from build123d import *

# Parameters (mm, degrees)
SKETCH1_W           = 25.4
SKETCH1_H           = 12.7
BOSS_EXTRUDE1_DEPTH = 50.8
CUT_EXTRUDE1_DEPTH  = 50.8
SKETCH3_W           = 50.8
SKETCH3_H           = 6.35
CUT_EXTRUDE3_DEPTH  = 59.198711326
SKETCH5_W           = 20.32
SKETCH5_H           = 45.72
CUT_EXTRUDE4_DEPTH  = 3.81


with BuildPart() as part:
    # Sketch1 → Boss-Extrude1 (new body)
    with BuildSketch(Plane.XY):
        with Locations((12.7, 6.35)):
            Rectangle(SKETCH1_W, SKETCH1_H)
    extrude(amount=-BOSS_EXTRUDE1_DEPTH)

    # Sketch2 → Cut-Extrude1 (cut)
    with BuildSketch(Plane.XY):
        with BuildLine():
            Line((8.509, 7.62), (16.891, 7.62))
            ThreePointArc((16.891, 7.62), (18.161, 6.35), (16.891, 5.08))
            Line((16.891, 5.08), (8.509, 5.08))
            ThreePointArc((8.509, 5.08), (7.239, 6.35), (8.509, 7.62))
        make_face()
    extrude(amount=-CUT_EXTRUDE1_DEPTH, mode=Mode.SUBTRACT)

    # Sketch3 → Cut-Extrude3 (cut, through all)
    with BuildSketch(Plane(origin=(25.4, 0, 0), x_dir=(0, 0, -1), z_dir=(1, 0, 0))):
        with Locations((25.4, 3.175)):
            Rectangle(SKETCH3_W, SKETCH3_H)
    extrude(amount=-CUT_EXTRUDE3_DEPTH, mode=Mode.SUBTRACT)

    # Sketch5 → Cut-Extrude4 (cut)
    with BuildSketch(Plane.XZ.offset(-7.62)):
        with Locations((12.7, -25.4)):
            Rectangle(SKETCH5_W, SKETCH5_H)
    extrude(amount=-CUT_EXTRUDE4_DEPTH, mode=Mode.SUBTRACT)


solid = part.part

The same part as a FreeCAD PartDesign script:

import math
import FreeCAD as App
import Part
import Sketcher

V = App.Vector
Q = App.Units.Quantity


def add_polygon(sketch, points):
    """Adds a closed chain of lines whose ends are joined by coincident constraints."""
    first, n = sketch.GeometryCount, len(points)
    for a, b in zip(points, points[1:] + points[:1]):
        sketch.addGeometry(Part.LineSegment(App.Vector(*a, 0), App.Vector(*b, 0)), False)
    for i in range(n):
        sketch.addConstraint(Sketcher.Constraint("Coincident", first + i, 2, first + (i + 1) % n, 1))

doc = App.newDocument("Part")
params = doc.addObject("Spreadsheet::Sheet", "Params")
for row, (alias, value) in enumerate([
    ("sketch1_width", "1 in"),
    ("sketch1_height", "0.5 in"),
    ("pad1_length", "2 in"),
    ("sketch2_radius", "0.05 in"),
    ("sketch2_width", "0.33 in"),
    ("pocket1_length", "2 in"),
    ("sketch3_height", "2 in"),
    ("sketch3_width", "0.25 in"),
    ("sketch4_width", "0.8 in"),
    ("sketch4_height", "1.8 in"),
    ("pocket3_length", "0.15 in"),
], start=1):
    params.set(f"A{row}", alias)
    params.set(f"B{row}", "=" + value)
    params.setAlias(f"B{row}", alias)

body = doc.addObject("PartDesign::Body", "Body")

# Sketch on XY plane
sketch1 = doc.addObject("Sketcher::SketchObject", "Sketch")
body.addObject(sketch1)
sketch1.AttachmentSupport = (doc.XY_Plane, [""])
sketch1.MapMode = "FlatFace"
add_polygon(sketch1, [(0, 13), (0, 0), (25, 0), (25, 13)])  # lines 0-3
sketch1.addConstraint(Sketcher.Constraint("Vertical", 0))
sketch1.addConstraint(Sketcher.Constraint("Horizontal", 1))
sketch1.addConstraint(Sketcher.Constraint("Vertical", 2))
sketch1.addConstraint(Sketcher.Constraint("Horizontal", 3))
sketch1.addConstraint(Sketcher.Constraint("Coincident", 0, 2, -1, 1))
sketch1.addConstraint(Sketcher.Constraint("DistanceX", 1, 1, 1, 2, Q("1 in")))
sketch1.addConstraint(Sketcher.Constraint("DistanceY", 0, 2, 0, 1, Q("0.5 in")))
sketch1.setExpression("Constraints[9]", "Params.sketch1_width")
sketch1.setExpression("Constraints[10]", "Params.sketch1_height")
pad1 = doc.addObject("PartDesign::Pad", "Pad")
body.addObject(pad1)
pad1.Profile = sketch1
pad1.setExpression("Length", "Params.pad1_length")
pad1.Reversed = True

# Sketch on XY plane
sketch2 = doc.addObject("Sketcher::SketchObject", "Sketch001")
body.addObject(sketch2)
sketch2.AttachmentSupport = (doc.XY_Plane, [""])
sketch2.MapMode = "FlatFace"
sketch2.addGeometry(Part.LineSegment(V(16.9, 7.6, 0), V(8.5, 7.6, 0)), False)
sketch2.addGeometry(Part.ArcOfCircle(Part.Circle(V(8.5, 6.3, 0), V(0, 0, 1), 1.3), math.radians(90), math.radians(270)), False)
sketch2.addGeometry(Part.LineSegment(V(8.5, 5.1, 0), V(16.9, 5.1, 0)), False)
sketch2.addGeometry(Part.ArcOfCircle(Part.Circle(V(16.9, 6.3, 0), V(0, 0, 1), 1.3), math.radians(-90), math.radians(90)), False)
sketch2.addConstraint(Sketcher.Constraint("Tangent", 0, 2, 1, 1))
sketch2.addConstraint(Sketcher.Constraint("Tangent", 1, 2, 2, 1))
sketch2.addConstraint(Sketcher.Constraint("Tangent", 2, 2, 3, 1))
sketch2.addConstraint(Sketcher.Constraint("Tangent", 3, 2, 0, 1))
sketch2.addConstraint(Sketcher.Constraint("Horizontal", 0))
sketch2.addConstraint(Sketcher.Constraint("Horizontal", 2))
sketch2.addConstraint(Sketcher.Constraint("Radius", 1, Q("0.05 in")))
sketch2.addConstraint(Sketcher.Constraint("DistanceX", 0, 2, 0, 1, Q("0.33 in")))
sketch2.addConstraint(Sketcher.Constraint("DistanceY", -1, 1, 0, 2, Q("0.3 in")))
sketch2.addConstraint(Sketcher.Constraint("DistanceX", -1, 1, 1, 3, Q("0.335 in")))
sketch2.setExpression("Constraints[6]", "Params.sketch2_radius")
sketch2.setExpression("Constraints[7]", "Params.sketch2_width")
pocket1 = doc.addObject("PartDesign::Pocket", "Pocket")
body.addObject(pocket1)
pocket1.Profile = sketch2
pocket1.setExpression("Length", "Params.pocket1_length")

# Sketch on YZ plane
sketch3 = doc.addObject("Sketcher::SketchObject", "Sketch002")
body.addObject(sketch3)
sketch3.AttachmentSupport = (doc.YZ_Plane, [""])
sketch3.MapMode = "FlatFace"
sketch3.AttachmentOffset = App.Placement(V(0, 0, 1 * 25.4), App.Rotation())
add_polygon(sketch3, [(6, 0), (0, 0), (0, -51), (6, -51)])  # lines 0-3
sketch3.addConstraint(Sketcher.Constraint("Horizontal", 0))
sketch3.addConstraint(Sketcher.Constraint("Vertical", 1))
sketch3.addConstraint(Sketcher.Constraint("Horizontal", 2))
sketch3.addConstraint(Sketcher.Constraint("Vertical", 3))
sketch3.addConstraint(Sketcher.Constraint("Coincident", 0, 2, -1, 1))
sketch3.addConstraint(Sketcher.Constraint("DistanceY", 1, 2, 1, 1, Q("2 in")))
sketch3.addConstraint(Sketcher.Constraint("DistanceX", 0, 2, 0, 1, Q("0.25 in")))
sketch3.setExpression("Constraints[9]", "Params.sketch3_height")
sketch3.setExpression("Constraints[10]", "Params.sketch3_width")
pocket2 = doc.addObject("PartDesign::Pocket", "Pocket001")
body.addObject(pocket2)
pocket2.Profile = sketch3
pocket2.Type = "ThroughAll"

# Sketch on XZ plane
sketch4 = doc.addObject("Sketcher::SketchObject", "Sketch003")
body.addObject(sketch4)
sketch4.AttachmentSupport = (doc.XZ_Plane, [""])
sketch4.MapMode = "FlatFace"
sketch4.AttachmentOffset = App.Placement(V(0, 0, -0.3 * 25.4), App.Rotation())
add_polygon(sketch4, [(3, -3), (3, -48), (23, -48), (23, -3)])  # lines 0-3
sketch4.addConstraint(Sketcher.Constraint("Vertical", 0))
sketch4.addConstraint(Sketcher.Constraint("Horizontal", 1))
sketch4.addConstraint(Sketcher.Constraint("Vertical", 2))
sketch4.addConstraint(Sketcher.Constraint("Horizontal", 3))
sketch4.addConstraint(Sketcher.Constraint("DistanceX", 1, 1, 1, 2, Q("0.8 in")))
sketch4.addConstraint(Sketcher.Constraint("DistanceY", 0, 2, 0, 1, Q("1.8 in")))
sketch4.addConstraint(Sketcher.Constraint("DistanceX", -1, 1, 0, 2, Q("0.1 in")))
sketch4.addConstraint(Sketcher.Constraint("DistanceY", 0, 2, -1, 1, Q("1.9 in")))
sketch4.setExpression("Constraints[8]", "Params.sketch4_width")
sketch4.setExpression("Constraints[9]", "Params.sketch4_height")
pocket3 = doc.addObject("PartDesign::Pocket", "Pocket002")
body.addObject(pocket3)
pocket3.Profile = sketch4
pocket3.setExpression("Length", "Params.pocket3_length")

doc.recompute()
